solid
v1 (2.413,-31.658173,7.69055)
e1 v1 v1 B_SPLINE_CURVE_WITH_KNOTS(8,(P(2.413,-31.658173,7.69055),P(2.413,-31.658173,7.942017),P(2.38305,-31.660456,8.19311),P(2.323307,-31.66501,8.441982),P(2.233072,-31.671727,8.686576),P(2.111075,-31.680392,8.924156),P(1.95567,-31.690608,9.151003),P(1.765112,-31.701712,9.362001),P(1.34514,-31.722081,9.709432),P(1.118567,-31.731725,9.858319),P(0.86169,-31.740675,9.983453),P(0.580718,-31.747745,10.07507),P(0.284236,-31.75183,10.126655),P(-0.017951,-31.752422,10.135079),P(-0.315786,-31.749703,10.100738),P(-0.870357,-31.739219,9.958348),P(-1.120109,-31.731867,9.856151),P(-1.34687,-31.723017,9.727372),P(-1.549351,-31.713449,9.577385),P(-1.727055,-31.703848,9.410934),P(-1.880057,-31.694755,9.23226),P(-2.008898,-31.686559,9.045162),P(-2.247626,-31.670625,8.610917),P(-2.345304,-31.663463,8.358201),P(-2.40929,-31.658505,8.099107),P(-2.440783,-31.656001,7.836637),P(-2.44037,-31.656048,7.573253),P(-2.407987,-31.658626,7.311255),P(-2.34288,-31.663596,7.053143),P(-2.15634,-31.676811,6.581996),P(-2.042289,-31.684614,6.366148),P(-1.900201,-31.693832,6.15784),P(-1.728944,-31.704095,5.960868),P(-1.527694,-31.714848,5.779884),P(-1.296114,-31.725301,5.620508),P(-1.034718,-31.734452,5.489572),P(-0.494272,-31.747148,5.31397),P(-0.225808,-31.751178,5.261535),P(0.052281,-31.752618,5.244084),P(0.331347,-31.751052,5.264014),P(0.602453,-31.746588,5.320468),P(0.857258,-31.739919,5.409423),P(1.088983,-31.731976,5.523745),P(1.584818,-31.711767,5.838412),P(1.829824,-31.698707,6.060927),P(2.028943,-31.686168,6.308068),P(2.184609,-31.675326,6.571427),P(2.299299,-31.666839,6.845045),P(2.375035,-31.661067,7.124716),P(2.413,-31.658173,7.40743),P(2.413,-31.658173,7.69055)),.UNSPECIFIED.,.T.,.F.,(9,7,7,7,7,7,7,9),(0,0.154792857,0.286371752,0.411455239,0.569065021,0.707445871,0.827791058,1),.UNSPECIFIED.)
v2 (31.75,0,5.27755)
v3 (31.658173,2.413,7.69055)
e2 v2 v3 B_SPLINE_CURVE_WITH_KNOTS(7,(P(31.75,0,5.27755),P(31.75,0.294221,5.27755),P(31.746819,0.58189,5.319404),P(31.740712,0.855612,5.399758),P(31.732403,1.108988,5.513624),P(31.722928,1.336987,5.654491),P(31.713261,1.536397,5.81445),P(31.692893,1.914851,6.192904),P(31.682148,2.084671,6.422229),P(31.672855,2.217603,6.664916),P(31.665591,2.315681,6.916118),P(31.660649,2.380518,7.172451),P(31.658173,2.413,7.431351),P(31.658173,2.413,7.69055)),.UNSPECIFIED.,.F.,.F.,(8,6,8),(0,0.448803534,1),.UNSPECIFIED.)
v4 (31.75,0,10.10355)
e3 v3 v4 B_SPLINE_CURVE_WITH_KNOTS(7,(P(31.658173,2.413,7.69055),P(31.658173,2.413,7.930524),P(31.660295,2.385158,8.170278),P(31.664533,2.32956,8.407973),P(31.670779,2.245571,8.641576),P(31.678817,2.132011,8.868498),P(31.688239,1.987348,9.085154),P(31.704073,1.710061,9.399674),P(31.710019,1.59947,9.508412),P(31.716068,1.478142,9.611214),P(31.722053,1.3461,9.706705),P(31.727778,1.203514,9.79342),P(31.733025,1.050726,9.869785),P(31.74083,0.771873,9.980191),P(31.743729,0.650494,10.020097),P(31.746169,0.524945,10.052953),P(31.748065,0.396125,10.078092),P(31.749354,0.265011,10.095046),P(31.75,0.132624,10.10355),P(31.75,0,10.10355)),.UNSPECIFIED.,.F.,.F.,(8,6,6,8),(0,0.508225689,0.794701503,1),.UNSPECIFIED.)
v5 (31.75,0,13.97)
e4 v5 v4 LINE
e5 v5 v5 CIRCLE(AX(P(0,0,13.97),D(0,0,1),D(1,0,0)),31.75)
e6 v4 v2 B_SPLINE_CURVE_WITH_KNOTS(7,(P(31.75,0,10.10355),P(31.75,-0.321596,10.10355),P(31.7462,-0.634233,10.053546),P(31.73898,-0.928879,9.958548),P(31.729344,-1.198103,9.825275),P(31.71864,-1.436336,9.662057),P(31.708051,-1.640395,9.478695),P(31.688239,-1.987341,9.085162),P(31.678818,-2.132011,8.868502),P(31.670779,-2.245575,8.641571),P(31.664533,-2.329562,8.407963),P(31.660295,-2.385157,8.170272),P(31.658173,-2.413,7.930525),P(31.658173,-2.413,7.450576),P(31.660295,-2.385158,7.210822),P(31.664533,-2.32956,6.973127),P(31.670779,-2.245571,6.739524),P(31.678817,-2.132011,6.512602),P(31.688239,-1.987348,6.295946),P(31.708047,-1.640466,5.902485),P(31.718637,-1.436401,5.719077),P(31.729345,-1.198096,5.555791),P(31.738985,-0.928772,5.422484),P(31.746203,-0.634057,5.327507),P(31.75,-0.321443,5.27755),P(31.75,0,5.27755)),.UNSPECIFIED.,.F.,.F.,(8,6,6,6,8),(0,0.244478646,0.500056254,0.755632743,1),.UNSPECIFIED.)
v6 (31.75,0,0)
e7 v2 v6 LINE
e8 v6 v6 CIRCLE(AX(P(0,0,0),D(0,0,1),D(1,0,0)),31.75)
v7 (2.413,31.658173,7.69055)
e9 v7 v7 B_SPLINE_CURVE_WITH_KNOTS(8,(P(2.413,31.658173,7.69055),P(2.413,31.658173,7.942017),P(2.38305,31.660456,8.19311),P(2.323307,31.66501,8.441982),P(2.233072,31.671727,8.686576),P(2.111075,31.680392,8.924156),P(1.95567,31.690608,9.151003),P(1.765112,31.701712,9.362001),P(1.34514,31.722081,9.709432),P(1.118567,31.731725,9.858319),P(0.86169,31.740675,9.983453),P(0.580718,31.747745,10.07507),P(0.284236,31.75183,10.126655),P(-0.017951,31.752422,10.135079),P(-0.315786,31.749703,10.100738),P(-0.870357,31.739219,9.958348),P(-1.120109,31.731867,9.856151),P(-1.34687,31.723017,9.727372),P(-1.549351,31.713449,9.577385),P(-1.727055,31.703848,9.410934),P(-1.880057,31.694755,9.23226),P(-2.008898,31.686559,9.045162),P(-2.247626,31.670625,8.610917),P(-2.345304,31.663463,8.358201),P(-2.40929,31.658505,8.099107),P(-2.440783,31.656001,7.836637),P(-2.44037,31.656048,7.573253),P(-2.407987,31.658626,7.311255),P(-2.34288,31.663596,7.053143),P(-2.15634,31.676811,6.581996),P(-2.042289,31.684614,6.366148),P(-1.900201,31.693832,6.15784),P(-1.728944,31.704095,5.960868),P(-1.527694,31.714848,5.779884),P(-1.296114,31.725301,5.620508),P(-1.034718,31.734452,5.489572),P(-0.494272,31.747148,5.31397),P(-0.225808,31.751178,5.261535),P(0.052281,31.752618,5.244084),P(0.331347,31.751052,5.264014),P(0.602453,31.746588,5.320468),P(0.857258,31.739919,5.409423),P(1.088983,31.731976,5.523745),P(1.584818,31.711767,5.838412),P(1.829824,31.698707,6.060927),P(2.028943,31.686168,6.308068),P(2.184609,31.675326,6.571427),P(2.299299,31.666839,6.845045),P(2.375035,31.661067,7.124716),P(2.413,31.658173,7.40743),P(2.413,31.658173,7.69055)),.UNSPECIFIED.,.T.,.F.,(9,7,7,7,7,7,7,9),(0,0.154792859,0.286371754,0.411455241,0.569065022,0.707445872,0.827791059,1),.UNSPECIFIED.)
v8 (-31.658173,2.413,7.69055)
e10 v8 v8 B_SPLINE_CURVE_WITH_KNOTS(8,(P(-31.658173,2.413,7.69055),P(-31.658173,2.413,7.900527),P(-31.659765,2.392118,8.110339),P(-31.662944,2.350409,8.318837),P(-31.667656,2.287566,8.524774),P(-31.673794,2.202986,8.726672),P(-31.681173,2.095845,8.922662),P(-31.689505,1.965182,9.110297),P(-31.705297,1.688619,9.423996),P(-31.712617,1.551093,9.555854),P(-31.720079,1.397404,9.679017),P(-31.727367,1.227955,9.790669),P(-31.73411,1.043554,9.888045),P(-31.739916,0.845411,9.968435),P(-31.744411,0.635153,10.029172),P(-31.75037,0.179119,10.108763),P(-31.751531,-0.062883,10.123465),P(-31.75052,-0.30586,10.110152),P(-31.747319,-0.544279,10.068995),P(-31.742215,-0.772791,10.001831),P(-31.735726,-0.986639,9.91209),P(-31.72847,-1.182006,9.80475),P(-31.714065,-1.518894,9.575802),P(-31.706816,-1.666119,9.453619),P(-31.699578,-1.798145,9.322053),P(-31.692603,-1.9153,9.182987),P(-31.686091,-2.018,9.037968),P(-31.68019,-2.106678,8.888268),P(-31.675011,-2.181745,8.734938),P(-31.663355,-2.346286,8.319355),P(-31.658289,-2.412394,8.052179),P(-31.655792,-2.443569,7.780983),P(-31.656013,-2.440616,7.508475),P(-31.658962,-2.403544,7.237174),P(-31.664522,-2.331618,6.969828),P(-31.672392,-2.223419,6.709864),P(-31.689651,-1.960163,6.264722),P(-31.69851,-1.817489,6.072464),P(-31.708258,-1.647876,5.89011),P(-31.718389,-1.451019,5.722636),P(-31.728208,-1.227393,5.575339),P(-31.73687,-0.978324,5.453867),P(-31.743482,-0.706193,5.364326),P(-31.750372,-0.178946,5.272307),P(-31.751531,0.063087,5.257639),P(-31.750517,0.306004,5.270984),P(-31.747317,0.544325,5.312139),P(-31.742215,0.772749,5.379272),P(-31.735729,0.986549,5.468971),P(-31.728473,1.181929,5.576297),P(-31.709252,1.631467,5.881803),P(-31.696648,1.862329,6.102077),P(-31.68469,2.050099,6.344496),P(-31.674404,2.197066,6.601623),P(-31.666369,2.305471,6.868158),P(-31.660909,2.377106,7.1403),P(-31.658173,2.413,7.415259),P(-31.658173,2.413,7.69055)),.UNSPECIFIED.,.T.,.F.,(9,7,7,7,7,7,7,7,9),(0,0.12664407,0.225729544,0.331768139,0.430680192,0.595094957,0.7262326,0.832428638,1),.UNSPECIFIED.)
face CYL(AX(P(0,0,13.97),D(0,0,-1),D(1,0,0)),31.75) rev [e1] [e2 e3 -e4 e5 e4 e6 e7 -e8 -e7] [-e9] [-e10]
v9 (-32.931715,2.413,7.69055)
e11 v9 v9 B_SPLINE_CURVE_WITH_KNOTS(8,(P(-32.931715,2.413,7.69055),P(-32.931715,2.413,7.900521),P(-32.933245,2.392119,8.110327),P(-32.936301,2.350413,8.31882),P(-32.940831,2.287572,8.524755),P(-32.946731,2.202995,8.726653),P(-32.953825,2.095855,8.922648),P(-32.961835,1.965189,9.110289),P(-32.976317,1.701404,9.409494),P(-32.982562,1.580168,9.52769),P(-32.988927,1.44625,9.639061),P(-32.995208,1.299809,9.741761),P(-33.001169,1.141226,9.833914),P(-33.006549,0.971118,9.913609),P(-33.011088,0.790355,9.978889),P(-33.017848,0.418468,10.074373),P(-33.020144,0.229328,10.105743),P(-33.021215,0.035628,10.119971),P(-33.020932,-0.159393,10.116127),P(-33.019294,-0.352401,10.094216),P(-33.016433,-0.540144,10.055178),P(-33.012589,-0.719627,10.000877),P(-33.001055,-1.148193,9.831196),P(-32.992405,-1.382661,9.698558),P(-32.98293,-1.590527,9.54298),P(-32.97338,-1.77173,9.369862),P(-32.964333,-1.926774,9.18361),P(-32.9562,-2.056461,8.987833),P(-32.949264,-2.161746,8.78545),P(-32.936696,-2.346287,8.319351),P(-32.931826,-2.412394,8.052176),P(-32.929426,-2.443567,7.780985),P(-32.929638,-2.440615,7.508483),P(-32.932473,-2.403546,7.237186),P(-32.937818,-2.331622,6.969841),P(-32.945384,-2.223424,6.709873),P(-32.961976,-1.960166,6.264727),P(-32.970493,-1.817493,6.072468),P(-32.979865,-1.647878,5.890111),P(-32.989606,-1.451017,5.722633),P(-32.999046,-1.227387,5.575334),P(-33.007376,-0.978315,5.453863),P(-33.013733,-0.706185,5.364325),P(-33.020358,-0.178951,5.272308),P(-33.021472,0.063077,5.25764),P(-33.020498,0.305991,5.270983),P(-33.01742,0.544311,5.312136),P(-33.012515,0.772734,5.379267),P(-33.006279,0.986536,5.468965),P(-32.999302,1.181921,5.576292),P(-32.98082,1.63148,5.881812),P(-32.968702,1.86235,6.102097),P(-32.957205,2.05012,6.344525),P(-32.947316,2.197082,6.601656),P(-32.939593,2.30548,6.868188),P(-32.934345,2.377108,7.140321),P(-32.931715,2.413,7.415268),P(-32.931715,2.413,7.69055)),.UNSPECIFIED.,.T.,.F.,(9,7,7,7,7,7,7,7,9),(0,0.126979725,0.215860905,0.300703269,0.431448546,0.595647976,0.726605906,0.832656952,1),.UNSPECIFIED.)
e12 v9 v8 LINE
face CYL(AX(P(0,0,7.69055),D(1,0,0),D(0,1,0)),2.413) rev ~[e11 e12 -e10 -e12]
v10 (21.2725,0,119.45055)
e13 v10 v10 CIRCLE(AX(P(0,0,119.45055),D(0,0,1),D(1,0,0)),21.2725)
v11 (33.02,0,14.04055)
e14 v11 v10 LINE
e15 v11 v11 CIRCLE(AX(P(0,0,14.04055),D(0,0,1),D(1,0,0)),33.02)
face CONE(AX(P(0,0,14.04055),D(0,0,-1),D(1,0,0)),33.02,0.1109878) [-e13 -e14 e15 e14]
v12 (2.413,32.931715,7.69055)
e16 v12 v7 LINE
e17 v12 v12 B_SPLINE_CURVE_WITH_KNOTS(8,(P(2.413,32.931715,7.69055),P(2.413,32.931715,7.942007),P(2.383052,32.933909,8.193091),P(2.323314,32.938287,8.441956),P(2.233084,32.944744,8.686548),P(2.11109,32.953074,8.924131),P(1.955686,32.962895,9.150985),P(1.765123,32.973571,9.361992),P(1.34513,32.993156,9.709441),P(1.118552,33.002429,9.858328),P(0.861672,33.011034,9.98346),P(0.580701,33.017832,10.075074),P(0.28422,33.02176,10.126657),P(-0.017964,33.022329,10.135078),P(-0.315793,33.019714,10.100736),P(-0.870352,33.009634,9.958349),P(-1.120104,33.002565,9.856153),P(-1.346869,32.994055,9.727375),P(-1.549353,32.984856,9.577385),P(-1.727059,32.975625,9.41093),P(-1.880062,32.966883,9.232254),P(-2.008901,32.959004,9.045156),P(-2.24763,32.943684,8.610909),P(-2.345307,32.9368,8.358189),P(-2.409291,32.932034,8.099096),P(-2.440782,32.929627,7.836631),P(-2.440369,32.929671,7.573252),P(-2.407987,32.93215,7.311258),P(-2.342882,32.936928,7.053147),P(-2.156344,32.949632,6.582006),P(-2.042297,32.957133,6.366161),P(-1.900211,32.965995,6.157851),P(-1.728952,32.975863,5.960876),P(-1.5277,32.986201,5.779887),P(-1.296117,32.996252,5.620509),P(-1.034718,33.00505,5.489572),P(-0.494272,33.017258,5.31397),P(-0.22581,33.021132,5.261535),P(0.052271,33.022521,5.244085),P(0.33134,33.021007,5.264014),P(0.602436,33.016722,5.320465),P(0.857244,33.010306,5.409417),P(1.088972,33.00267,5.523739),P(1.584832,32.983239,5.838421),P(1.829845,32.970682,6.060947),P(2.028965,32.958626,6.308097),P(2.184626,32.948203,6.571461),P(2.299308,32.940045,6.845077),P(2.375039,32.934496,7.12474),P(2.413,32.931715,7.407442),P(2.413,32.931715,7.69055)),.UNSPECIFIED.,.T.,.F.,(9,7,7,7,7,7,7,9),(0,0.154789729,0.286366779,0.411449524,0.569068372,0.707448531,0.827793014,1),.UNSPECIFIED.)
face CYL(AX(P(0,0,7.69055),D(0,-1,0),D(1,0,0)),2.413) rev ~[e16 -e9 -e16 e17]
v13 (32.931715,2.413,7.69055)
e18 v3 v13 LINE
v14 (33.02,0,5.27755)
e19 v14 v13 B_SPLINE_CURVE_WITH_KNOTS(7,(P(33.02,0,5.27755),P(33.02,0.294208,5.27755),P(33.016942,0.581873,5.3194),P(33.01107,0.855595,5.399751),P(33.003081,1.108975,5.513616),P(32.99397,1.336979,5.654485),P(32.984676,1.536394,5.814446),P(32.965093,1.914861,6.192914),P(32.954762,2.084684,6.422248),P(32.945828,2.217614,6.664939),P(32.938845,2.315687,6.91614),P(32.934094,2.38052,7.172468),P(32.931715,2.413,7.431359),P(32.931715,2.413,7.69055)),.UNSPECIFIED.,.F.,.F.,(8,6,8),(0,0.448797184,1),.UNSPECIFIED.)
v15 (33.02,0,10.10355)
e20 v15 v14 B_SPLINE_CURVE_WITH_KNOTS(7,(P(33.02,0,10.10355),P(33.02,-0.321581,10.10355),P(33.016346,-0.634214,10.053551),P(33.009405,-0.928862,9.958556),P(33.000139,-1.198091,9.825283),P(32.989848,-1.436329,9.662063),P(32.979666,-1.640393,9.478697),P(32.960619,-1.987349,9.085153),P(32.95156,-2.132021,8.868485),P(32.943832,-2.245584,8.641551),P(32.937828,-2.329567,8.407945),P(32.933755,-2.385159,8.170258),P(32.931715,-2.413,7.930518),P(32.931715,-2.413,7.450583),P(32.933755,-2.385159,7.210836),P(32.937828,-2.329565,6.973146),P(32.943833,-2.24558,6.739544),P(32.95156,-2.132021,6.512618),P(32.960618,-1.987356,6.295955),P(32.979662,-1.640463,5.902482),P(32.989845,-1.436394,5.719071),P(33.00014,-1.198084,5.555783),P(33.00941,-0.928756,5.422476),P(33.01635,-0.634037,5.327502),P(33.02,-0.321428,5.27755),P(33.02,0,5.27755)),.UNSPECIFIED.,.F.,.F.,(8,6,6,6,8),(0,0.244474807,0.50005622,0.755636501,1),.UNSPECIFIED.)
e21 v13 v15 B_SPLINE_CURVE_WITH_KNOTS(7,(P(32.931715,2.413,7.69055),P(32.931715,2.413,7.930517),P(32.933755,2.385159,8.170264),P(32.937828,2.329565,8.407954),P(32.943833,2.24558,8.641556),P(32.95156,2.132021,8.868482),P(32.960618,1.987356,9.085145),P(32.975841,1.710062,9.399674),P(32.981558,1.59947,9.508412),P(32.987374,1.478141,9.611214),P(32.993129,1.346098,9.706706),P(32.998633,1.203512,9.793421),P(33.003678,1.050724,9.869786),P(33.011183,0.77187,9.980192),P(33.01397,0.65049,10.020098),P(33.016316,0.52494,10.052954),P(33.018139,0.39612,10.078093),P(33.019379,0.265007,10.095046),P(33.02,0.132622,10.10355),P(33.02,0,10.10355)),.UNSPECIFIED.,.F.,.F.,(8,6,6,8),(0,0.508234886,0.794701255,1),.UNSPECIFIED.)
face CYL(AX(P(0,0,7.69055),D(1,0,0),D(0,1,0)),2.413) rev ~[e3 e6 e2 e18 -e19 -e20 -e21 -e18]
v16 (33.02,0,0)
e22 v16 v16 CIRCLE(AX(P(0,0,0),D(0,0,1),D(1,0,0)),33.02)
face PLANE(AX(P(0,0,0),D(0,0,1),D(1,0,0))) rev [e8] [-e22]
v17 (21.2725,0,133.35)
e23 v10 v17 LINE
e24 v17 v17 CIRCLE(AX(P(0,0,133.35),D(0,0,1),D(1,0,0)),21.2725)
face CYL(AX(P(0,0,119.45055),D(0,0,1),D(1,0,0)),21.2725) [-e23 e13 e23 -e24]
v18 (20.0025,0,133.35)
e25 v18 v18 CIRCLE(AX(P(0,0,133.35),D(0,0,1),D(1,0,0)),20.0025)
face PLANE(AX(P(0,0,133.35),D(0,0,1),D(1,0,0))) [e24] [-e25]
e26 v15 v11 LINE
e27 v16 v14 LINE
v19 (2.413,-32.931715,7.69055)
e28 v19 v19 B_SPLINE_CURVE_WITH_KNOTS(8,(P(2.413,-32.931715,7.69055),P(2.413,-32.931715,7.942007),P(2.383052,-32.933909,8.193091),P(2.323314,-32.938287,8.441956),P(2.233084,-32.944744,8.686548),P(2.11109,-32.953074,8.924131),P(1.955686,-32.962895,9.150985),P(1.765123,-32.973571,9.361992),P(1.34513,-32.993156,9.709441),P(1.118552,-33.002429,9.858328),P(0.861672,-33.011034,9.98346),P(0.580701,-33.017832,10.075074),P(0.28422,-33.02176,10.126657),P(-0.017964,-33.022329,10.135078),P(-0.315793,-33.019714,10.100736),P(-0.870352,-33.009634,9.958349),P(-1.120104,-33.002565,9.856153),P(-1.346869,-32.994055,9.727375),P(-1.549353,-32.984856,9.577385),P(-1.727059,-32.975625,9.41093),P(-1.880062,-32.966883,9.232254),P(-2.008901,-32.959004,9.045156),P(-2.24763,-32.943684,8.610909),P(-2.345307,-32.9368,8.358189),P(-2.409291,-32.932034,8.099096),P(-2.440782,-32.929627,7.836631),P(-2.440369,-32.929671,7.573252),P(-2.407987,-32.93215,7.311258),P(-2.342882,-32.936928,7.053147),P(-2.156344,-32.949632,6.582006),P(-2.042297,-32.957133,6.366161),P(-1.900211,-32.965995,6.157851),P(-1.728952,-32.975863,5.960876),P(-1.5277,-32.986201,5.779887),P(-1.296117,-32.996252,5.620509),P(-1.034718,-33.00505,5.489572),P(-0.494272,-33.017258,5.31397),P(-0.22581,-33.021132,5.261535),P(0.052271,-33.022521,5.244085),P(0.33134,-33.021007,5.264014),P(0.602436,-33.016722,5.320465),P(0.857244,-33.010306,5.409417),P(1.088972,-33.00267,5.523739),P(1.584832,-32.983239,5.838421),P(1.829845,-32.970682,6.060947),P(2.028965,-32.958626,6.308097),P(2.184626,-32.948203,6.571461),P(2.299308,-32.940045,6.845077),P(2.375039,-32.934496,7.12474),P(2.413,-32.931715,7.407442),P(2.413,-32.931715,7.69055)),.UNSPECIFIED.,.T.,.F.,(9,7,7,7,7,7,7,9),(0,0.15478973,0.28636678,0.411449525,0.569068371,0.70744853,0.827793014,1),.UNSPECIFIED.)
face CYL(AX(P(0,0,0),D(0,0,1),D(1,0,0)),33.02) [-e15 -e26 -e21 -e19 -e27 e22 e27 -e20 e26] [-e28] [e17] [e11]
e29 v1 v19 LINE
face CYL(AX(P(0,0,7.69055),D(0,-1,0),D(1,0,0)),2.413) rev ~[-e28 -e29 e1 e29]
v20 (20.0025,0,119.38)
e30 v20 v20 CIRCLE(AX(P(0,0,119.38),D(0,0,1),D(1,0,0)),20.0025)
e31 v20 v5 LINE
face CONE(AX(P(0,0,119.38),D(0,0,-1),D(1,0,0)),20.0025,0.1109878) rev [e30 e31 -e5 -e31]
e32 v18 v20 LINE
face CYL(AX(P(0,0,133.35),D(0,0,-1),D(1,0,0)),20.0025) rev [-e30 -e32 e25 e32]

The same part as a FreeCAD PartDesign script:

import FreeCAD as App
import Part
import Sketcher

V = App.Vector
Q = App.Units.Quantity

doc = App.newDocument("Part")
body = doc.addObject("PartDesign::Body", "Body")

sketch1 = body.newObject("Sketcher::SketchObject", "Sketch")
sketch1.AttachmentSupport = (doc.getObject("XZ_Plane"), [""])
sketch1.MapMode = "FlatFace"
sketch1.addGeometry([
    Part.LineSegment(V(31.8, 14, 0), V(31.8, 0, 0)),
    Part.LineSegment(V(31.8, 0, 0), V(33, 0, 0)),
    Part.LineSegment(V(33, 0, 0), V(33, 14, 0)),
    Part.LineSegment(V(33, 14, 0), V(21.3, 119.5, 0)),
    Part.LineSegment(V(21.3, 119.5, 0), V(21.3, 133.3, 0)),
    Part.LineSegment(V(21.3, 133.3, 0), V(20, 133.3, 0)),
    Part.LineSegment(V(20, 133.3, 0), V(20, 119.4, 0)),
    Part.LineSegment(V(20, 119.4, 0), V(31.8, 14, 0)),
], False)
sketch1.addConstraint([
    Sketcher.Constraint("Coincident", 0, 2, 1, 1),
    Sketcher.Constraint("Coincident", 1, 2, 2, 1),
    Sketcher.Constraint("Coincident", 2, 2, 3, 1),
    Sketcher.Constraint("Coincident", 3, 2, 4, 1),
    Sketcher.Constraint("Coincident", 4, 2, 5, 1),
    Sketcher.Constraint("Coincident", 5, 2, 6, 1),
    Sketcher.Constraint("Coincident", 6, 2, 7, 1),
    Sketcher.Constraint("Coincident", 7, 2, 0, 1),
    Sketcher.Constraint("Vertical", 0),
    Sketcher.Constraint("Horizontal", 1),
    Sketcher.Constraint("Vertical", 2),
    Sketcher.Constraint("Vertical", 4),
    Sketcher.Constraint("Horizontal", 5),
    Sketcher.Constraint("Vertical", 6),
    Sketcher.Constraint("PointOnObject", 0, 2, -1),
    Sketcher.Constraint("Parallel", 3, 7),
    Sketcher.Constraint("Equal", 1, 5),
    Sketcher.Constraint("Equal", 0, 6),
    Sketcher.Constraint("DistanceX", 1, 1, 1, 2, Q("0.05 in")),
    Sketcher.Constraint("DistanceY", 0, 2, 0, 1, Q("0.55 in")),
    Sketcher.Constraint("DistanceX", -1, 1, 1, 2, Q("1.3 in")),
    Sketcher.Constraint("DistanceY", -1, 1, 6, 2, Q("4.7 in")),
    Sketcher.Constraint("DistanceX", -1, 1, 3, 2, Q("0.8375 in")),
    Sketcher.Constraint("DistanceY", 2, 1, 2, 2, 14.04055),
])
revolution = body.newObject("PartDesign::Revolution", "Revolution")
revolution.Profile = sketch1
revolution.ReferenceAxis = (sketch1, ["V_Axis"])
revolution.Angle = 360

sketch2 = body.newObject("Sketcher::SketchObject", "Sketch001")
sketch2.AttachmentSupport = (doc.getObject("XZ_Plane"), [""])
sketch2.MapMode = "FlatFace"
sketch2.addGeometry(Part.Circle(V(0, 7.7, 0), V(0, 0, 1), 2.4), False)
sketch2.addConstraint([
    Sketcher.Constraint("PointOnObject", 0, 3, -2),
    Sketcher.Constraint("Diameter", 0, Q("0.19 in")),
    Sketcher.Constraint("DistanceY", -1, 1, 0, 3, 7.69055),
])
pocket1 = body.newObject("PartDesign::Pocket", "Pocket")
pocket1.Profile = sketch2
pocket1.Length = Q("4 in")
pocket1.Midplane = True

sketch3 = body.newObject("Sketcher::SketchObject", "Sketch002")
sketch3.AttachmentSupport = (doc.getObject("YZ_Plane"), [""])
sketch3.MapMode = "FlatFace"
sketch3.addGeometry(Part.Circle(V(0, 7.7, 0), V(0, 0, 1), 2.4), False)
sketch3.addConstraint([
    Sketcher.Constraint("PointOnObject", 0, 3, -2),
    Sketcher.Constraint("Diameter", 0, Q("0.19 in")),
    Sketcher.Constraint("DistanceY", -1, 1, 0, 3, 7.69055),
])
pocket2 = body.newObject("PartDesign::Pocket", "Pocket001")
pocket2.Profile = sketch3
pocket2.Length = Q("4 in")
pocket2.Midplane = True

doc.recompute()
